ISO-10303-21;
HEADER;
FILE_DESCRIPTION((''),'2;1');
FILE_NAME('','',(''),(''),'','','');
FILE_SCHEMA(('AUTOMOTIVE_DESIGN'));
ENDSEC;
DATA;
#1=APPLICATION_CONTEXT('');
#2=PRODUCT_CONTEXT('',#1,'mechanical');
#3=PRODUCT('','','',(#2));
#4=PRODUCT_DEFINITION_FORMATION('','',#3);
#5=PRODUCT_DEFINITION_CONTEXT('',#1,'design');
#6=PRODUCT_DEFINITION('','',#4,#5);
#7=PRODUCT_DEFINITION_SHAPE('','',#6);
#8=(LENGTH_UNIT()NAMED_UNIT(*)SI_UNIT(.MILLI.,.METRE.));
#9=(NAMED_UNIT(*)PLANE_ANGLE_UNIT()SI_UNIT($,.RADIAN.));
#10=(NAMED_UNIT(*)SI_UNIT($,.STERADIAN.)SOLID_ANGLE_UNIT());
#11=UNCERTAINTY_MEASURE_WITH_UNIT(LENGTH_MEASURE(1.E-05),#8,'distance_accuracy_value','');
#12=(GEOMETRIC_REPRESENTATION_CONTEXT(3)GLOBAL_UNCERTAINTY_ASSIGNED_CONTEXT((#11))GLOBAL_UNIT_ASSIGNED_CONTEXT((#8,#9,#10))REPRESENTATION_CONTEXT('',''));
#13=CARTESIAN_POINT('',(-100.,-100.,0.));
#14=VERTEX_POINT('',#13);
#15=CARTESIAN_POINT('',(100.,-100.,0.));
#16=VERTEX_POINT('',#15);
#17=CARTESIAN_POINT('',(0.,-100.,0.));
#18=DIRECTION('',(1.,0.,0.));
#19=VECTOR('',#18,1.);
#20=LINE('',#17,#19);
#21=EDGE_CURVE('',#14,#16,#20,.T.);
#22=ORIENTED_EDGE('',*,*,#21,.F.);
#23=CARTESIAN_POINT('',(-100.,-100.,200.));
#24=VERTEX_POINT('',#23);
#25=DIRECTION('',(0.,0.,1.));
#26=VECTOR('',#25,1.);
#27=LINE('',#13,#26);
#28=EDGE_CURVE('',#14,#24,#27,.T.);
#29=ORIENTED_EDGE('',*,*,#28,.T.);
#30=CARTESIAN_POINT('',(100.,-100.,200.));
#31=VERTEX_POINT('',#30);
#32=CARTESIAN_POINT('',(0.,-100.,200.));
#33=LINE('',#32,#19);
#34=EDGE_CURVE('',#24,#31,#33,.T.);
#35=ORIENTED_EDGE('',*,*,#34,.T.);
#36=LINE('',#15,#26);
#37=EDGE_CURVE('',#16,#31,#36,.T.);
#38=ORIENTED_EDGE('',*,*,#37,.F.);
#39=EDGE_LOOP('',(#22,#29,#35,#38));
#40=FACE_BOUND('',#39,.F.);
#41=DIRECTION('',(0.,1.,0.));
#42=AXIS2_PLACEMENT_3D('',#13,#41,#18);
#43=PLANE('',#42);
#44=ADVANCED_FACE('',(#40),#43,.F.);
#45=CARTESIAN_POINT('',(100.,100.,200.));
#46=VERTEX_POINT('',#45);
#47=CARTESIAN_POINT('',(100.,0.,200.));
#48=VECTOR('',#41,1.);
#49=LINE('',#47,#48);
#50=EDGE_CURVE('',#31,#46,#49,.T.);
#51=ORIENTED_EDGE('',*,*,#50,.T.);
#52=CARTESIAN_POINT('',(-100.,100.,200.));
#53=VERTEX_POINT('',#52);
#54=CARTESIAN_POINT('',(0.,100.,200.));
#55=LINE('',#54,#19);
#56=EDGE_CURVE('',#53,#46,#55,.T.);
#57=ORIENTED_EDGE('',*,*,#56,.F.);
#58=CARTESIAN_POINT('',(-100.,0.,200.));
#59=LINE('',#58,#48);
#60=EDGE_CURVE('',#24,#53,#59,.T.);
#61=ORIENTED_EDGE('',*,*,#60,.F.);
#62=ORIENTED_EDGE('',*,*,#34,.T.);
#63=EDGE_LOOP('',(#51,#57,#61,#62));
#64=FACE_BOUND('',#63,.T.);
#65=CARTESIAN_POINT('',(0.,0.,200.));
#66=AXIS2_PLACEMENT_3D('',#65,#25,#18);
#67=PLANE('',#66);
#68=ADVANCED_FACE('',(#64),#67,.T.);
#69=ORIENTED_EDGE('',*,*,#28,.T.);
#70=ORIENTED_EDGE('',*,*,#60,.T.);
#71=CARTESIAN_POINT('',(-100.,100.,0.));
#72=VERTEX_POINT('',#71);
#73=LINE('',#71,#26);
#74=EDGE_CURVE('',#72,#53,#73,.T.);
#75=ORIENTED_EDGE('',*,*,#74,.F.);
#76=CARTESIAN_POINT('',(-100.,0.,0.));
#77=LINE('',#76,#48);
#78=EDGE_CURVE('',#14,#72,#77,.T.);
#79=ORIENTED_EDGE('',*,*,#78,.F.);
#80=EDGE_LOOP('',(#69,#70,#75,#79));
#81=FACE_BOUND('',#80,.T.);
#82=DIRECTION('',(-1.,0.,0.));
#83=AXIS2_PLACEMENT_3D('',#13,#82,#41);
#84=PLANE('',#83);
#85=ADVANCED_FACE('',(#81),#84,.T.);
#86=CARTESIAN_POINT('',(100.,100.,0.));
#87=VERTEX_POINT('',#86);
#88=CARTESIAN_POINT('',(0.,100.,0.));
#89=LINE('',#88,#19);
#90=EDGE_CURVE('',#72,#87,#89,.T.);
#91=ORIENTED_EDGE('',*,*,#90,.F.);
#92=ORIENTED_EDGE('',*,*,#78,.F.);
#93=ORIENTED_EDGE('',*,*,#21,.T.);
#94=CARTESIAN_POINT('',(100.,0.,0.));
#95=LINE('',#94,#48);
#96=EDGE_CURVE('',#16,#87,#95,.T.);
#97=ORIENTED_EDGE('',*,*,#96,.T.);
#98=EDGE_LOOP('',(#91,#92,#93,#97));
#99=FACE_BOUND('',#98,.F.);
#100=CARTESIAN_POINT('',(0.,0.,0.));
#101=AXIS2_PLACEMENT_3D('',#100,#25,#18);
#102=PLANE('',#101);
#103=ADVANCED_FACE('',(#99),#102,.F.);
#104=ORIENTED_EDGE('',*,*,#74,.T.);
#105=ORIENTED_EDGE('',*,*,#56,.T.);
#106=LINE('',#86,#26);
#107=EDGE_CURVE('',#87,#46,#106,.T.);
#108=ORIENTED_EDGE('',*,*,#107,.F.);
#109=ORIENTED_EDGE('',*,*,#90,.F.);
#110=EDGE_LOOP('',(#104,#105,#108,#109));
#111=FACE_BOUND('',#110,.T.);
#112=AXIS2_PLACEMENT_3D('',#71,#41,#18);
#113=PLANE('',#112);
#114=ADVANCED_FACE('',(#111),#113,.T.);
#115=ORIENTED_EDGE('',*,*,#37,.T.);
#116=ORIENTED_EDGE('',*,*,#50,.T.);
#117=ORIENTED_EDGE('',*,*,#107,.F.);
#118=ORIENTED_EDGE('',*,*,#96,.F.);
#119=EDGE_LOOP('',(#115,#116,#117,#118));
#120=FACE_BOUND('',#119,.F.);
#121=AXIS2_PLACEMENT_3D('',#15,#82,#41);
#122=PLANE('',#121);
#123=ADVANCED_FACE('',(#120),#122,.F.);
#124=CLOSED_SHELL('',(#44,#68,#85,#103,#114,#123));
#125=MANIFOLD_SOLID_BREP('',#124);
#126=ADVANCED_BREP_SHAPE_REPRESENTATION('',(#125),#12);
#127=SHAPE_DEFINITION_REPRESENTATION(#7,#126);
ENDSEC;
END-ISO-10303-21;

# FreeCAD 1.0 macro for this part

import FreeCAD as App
import Part
import Sketcher

doc = App.newDocument("Part")
params = doc.addObject("Spreadsheet::Sheet", "Params")
for row, (alias, value) in enumerate([
    ("sketch1_width", "200 mm"),
    ("pad1_length", "200 mm"),
], start=1):
    params.set(f"A{row}", alias)
    params.set(f"B{row}", "=" + value)
    params.setAlias(f"B{row}", alias)

body = doc.addObject("PartDesign::Body", "Body")

sketch1 = body.newObject("Sketcher::SketchObject", "Sketch")
sketch1.AttachmentSupport = (doc.getObject("XY_Plane"), [""])
sketch1.MapMode = "FlatFace"
sketch1.addGeometry(Part.LineSegment(App.Vector(-100, 100, 0), App.Vector(-100, -100, 0)), False)
sketch1.addGeometry(Part.LineSegment(App.Vector(-100, -100, 0), App.Vector(100, -100, 0)), False)
sketch1.addGeometry(Part.LineSegment(App.Vector(100, -100, 0), App.Vector(100, 100, 0)), False)
sketch1.addGeometry(Part.LineSegment(App.Vector(100, 100, 0), App.Vector(-100, 100, 0)), False)
sketch1.addConstraint(Sketcher.Constraint("Coincident", 0, 2, 1, 1))
sketch1.addConstraint(Sketcher.Constraint("Coincident", 1, 2, 2, 1))
sketch1.addConstraint(Sketcher.Constraint("Coincident", 2, 2, 3, 1))
sketch1.addConstraint(Sketcher.Constraint("Coincident", 3, 2, 0, 1))
sketch1.addConstraint(Sketcher.Constraint("Vertical", 0))
sketch1.addConstraint(Sketcher.Constraint("Horizontal", 1))
sketch1.addConstraint(Sketcher.Constraint("Vertical", 2))
sketch1.addConstraint(Sketcher.Constraint("Horizontal", 3))
sketch1.addConstraint(Sketcher.Constraint("Symmetric", 0, 2, 2, 2, -1, 1))
sketch1.addConstraint(Sketcher.Constraint("Equal", 3, 0))
sketch1.addConstraint(Sketcher.Constraint("DistanceX", 1, 1, 1, 2, 200.0))
sketch1.setExpression("Constraints[10]", "Params.sketch1_width")
pad1 = body.newObject("PartDesign::Pad", "Pad")
pad1.Profile = sketch1
pad1.setExpression("Length", "Params.pad1_length")

doc.recompute()
